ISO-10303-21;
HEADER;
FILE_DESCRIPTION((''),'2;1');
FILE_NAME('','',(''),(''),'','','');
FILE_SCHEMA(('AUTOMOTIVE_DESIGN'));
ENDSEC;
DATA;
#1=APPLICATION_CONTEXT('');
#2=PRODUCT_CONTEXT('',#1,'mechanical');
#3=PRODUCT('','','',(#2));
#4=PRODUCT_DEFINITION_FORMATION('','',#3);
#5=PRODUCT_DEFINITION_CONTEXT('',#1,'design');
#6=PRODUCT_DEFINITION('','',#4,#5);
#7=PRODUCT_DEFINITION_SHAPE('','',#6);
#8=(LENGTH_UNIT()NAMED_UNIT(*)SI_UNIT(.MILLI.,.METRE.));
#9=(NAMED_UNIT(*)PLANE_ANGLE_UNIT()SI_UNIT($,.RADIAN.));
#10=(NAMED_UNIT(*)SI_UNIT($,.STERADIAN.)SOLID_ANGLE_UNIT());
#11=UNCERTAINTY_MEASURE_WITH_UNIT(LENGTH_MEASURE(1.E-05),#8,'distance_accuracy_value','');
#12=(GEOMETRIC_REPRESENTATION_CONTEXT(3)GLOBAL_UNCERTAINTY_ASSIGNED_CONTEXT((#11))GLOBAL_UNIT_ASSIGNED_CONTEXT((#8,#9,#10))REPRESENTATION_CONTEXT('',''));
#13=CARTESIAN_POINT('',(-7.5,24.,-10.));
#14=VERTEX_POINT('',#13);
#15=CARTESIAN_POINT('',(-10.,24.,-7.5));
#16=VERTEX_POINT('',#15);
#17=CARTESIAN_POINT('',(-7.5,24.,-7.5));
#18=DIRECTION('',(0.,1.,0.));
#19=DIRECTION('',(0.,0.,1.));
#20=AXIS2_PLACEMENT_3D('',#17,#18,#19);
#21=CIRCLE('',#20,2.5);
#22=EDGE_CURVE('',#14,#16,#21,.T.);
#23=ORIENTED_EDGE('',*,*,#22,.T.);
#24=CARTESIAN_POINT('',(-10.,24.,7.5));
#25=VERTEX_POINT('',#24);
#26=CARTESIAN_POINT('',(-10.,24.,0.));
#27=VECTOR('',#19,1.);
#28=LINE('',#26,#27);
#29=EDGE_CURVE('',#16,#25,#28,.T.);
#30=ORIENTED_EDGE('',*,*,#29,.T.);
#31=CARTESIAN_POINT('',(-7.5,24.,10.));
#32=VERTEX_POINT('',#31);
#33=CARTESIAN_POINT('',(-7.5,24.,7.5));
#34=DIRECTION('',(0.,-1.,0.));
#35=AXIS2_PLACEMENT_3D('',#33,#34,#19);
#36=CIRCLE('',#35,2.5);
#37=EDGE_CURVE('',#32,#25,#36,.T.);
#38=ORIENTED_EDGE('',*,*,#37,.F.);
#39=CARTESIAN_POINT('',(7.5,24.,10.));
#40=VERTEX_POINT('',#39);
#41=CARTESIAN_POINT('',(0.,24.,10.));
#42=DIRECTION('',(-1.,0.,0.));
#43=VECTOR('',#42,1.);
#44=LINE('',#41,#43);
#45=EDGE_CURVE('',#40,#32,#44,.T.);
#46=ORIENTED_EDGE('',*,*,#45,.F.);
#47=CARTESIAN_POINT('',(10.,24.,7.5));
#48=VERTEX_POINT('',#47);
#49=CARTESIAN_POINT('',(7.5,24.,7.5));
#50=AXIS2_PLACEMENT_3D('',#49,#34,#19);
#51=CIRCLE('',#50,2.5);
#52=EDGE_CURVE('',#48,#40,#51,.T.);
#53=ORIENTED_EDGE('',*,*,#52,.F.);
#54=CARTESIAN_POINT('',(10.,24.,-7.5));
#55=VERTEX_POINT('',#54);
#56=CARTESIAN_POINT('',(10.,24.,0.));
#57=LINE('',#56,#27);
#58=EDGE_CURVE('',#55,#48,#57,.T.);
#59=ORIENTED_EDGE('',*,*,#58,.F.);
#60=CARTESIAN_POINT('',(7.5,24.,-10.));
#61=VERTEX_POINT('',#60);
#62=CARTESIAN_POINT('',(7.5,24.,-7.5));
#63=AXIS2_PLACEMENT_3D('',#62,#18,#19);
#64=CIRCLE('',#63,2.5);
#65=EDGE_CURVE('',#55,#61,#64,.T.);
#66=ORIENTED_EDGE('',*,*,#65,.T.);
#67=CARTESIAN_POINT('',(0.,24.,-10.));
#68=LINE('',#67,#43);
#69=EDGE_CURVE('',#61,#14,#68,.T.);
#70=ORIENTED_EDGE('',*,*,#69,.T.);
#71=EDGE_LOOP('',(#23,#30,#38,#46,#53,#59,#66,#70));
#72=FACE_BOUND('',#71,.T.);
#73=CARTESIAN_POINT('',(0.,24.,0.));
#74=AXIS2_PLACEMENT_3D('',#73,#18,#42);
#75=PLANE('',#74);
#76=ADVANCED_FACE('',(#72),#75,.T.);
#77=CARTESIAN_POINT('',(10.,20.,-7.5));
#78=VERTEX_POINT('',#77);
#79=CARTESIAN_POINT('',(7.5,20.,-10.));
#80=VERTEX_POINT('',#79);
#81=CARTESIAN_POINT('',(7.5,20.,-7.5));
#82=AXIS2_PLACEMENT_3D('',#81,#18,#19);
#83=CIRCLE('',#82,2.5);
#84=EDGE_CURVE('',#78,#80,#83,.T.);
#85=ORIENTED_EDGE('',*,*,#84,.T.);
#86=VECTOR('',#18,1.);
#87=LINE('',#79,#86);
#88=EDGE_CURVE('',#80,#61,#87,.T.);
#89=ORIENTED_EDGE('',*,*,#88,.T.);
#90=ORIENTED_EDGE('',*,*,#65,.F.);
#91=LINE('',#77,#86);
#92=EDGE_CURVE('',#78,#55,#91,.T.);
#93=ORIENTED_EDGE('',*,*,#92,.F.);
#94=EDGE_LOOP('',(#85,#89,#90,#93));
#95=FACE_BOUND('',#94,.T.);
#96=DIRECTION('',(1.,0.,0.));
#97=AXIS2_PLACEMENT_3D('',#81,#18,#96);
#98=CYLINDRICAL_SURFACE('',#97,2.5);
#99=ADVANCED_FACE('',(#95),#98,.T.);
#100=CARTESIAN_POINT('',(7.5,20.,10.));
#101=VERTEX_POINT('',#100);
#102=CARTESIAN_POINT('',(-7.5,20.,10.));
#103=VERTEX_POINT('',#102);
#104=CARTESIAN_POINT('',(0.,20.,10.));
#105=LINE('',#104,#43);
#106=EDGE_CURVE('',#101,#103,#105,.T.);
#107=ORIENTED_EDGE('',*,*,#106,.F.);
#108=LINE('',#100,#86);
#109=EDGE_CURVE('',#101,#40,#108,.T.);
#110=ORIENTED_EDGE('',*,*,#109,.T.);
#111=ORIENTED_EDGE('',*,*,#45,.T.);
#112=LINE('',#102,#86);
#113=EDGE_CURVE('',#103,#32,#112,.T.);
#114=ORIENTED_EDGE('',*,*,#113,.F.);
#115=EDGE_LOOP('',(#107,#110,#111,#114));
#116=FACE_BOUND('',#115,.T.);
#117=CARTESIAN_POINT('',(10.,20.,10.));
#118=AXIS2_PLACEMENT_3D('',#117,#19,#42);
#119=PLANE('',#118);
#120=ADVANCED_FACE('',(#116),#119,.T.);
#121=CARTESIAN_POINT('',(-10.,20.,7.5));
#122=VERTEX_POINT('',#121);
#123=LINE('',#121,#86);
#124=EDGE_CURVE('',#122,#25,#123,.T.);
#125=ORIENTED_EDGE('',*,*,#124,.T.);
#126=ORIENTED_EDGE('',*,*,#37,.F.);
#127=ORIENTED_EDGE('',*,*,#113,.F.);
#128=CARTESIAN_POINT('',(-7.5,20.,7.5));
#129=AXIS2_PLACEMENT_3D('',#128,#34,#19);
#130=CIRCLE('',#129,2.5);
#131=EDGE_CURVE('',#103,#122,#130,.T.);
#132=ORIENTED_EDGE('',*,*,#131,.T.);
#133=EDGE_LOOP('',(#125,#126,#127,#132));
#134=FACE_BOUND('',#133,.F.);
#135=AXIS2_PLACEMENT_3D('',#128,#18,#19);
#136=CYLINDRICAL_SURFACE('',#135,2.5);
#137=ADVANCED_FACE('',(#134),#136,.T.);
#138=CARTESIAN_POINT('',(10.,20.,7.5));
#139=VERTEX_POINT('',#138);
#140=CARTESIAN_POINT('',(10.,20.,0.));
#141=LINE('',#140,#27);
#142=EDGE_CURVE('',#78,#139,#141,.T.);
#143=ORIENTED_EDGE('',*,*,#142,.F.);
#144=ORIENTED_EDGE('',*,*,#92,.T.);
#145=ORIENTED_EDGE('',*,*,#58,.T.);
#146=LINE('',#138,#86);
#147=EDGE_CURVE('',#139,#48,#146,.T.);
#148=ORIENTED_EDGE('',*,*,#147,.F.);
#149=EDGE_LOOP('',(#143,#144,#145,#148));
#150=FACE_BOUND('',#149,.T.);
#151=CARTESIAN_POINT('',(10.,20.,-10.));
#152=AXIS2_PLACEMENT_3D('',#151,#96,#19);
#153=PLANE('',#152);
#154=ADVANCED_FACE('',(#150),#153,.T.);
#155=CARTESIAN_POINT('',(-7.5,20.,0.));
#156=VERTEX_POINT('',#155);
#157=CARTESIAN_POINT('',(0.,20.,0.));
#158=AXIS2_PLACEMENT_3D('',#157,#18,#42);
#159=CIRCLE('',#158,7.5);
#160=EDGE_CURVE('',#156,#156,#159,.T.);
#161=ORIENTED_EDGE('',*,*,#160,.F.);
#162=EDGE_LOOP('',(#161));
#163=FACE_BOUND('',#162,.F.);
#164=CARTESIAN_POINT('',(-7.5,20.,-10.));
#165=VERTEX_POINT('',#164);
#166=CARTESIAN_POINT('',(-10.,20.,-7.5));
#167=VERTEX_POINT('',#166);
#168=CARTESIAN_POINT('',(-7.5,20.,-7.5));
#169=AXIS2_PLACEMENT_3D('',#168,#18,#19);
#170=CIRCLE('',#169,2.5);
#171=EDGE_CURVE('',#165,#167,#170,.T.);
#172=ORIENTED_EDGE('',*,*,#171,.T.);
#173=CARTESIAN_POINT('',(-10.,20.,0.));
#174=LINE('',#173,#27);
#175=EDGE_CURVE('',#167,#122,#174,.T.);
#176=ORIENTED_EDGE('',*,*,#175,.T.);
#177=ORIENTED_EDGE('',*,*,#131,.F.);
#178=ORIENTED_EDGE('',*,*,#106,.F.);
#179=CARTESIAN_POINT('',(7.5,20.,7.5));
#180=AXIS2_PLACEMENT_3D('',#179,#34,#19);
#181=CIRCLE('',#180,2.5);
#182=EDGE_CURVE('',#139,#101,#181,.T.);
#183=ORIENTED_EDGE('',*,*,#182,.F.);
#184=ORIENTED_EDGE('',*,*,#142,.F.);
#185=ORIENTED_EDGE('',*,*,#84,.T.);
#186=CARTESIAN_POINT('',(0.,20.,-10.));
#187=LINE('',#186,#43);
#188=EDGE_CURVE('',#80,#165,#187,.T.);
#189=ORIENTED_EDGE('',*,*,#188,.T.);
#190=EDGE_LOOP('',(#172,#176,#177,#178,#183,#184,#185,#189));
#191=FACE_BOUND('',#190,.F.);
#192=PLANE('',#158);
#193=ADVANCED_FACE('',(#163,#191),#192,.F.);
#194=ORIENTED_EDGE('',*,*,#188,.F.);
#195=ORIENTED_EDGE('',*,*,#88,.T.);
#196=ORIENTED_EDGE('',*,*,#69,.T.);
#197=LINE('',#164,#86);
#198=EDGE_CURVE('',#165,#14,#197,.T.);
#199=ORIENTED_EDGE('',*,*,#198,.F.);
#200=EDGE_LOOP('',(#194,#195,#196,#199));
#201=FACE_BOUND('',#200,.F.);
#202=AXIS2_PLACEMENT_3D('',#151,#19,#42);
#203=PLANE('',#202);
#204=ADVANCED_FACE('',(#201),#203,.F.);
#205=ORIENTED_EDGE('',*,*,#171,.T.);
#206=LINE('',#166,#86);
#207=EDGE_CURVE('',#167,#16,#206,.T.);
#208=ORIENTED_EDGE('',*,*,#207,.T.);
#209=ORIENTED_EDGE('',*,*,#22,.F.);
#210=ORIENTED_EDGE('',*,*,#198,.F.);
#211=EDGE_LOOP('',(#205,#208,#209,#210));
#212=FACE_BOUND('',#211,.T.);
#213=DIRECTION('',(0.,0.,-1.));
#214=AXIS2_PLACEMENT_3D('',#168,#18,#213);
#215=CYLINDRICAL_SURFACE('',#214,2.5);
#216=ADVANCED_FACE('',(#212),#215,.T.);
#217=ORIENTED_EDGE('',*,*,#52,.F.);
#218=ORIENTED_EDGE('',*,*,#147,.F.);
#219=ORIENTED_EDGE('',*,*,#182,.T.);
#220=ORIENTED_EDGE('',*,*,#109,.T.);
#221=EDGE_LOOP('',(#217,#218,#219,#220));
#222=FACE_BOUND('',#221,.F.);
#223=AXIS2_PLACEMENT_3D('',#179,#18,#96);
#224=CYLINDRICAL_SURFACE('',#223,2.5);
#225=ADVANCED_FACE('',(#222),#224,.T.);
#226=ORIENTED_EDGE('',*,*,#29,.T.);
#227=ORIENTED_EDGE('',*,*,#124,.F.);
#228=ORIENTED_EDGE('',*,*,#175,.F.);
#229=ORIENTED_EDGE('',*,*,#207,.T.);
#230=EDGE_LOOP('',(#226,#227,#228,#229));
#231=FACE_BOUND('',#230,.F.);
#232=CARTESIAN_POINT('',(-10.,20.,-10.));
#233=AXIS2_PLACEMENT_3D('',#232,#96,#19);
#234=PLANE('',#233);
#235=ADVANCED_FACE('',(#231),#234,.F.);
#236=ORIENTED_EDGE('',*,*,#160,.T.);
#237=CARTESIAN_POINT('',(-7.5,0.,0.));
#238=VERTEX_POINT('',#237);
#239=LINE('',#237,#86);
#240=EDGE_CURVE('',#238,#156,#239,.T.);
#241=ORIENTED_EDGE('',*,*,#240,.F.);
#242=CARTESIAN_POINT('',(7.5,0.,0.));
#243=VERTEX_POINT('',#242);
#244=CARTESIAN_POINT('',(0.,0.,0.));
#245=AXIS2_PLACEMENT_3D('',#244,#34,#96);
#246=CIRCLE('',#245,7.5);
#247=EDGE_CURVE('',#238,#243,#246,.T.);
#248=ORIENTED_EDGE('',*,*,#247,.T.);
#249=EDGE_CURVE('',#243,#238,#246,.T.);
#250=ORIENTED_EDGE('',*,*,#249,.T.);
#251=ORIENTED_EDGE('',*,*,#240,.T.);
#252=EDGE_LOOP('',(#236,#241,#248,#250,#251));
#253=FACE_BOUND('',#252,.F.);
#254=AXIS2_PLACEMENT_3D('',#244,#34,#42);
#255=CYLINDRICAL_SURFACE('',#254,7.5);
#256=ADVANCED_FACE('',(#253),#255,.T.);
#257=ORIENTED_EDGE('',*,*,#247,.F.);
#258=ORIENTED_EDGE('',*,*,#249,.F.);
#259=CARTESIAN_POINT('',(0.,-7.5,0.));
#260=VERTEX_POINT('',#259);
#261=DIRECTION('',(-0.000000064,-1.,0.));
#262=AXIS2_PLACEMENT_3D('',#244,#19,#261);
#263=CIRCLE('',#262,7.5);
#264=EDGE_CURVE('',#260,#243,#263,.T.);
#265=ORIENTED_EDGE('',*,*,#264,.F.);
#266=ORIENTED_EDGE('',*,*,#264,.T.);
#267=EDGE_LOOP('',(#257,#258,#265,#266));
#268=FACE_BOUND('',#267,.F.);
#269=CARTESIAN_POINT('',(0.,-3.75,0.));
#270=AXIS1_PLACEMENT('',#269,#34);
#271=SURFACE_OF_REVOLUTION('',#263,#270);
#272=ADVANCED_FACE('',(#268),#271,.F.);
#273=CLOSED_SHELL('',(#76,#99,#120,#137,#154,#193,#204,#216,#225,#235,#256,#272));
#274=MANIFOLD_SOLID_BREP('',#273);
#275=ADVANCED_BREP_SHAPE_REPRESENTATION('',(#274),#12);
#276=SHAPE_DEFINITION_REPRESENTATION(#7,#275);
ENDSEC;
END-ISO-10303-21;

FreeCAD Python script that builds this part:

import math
import FreeCAD as App
import Part
import Sketcher


def edges_at(feature, points):
    """Names of the edges that pass closest to the given points."""
    edges = feature.Shape.Edges
    near = lambda p: min(range(len(edges)), key=lambda i: edges[i].distToShape(Part.Vertex(*p))[0])
    return sorted({f"Edge{near(p) + 1}" for p in points})


def add_polygon(sketch, points):
    """Adds a closed chain of lines whose ends are joined by coincident constraints."""
    first, n = sketch.GeometryCount, len(points)
    for a, b in zip(points, points[1:] + points[:1]):
        sketch.addGeometry(Part.LineSegment(App.Vector(*a, 0), App.Vector(*b, 0)), False)
    for i in range(n):
        sketch.addConstraint(Sketcher.Constraint("Coincident", first + i, 2, first + (i + 1) % n, 1))

doc = App.newDocument("Part")
body = doc.addObject("PartDesign::Body", "Body")

sketch1 = body.newObject("Sketcher::SketchObject", "Sketch")
sketch1.AttachmentSupport = (doc.getObject("XY_Plane"), [""])
sketch1.MapMode = "FlatFace"
sketch1.addGeometry([
    Part.ArcOfCircle(Part.Circle(App.Vector(0, 0, 0), App.Vector(0, 0, 1), 7), math.radians(-90), math.radians(0)),
    Part.LineSegment(App.Vector(8, 0, 0), App.Vector(0, 0, 0)),
    Part.LineSegment(App.Vector(0, 0, 0), App.Vector(0, -8, 0)),
], False)
sketch1.addConstraint([
    Sketcher.Constraint("Coincident", 0, 2, 1, 1),
    Sketcher.Constraint("Coincident", 1, 2, 2, 1),
    Sketcher.Constraint("Coincident", 2, 2, 0, 1),
    Sketcher.Constraint("Horizontal", 1),
    Sketcher.Constraint("Vertical", 2),
    Sketcher.Constraint("Coincident", 0, 3, -1, 1),
    Sketcher.Constraint("Coincident", 1, 2, -1, 1),
    Sketcher.Constraint("Radius", 0, 7.5),
])
revolution = body.newObject("PartDesign::Revolution", "Revolution")
revolution.Profile = sketch1
revolution.ReferenceAxis = (sketch1, ["V_Axis"])
revolution.Angle = 360

sketch2 = body.newObject("Sketcher::SketchObject", "Sketch001")
sketch2.AttachmentSupport = (doc.getObject("XZ_Plane"), [""])
sketch2.MapMode = "FlatFace"
sketch2.addGeometry(Part.Circle(App.Vector(0, 0, 0), App.Vector(0, 0, 1), 8), False)
sketch2.addConstraint([
    Sketcher.Constraint("Coincident", 0, 3, -1, 1),
    Sketcher.Constraint("Diameter", 0, 15.0),
])
pad1 = body.newObject("PartDesign::Pad", "Pad")
pad1.Profile = sketch2
pad1.Length = 20
pad1.Reversed = True

sketch3 = body.newObject("Sketcher::SketchObject", "Sketch002")
sketch3.AttachmentSupport = (doc.getObject("XZ_Plane"), [""])
sketch3.MapMode = "FlatFace"
sketch3.AttachmentOffset = App.Placement(App.Vector(0, 0, -20), App.Rotation())
add_polygon(sketch3, [(10, 10), (10, -10), (-10, -10), (-10, 10)])
sketch3.addConstraint([
    Sketcher.Constraint("Vertical", 0),
    Sketcher.Constraint("Horizontal", 1),
    Sketcher.Constraint("Vertical", 2),
    Sketcher.Constraint("Horizontal", 3),
    Sketcher.Constraint("Symmetric", 0, 2, 2, 2, -1, 1),
    Sketcher.Constraint("Equal", 3, 0),
    Sketcher.Constraint("DistanceX", 1, 2, 1, 1, 20.0),
])
pad2 = body.newObject("PartDesign::Pad", "Pad001")
pad2.Profile = sketch3
pad2.Length = 4
pad2.Reversed = True
doc.recompute()

fillet = body.newObject("PartDesign::Fillet", "Fillet")
fillet.Base = (pad2, edges_at(pad2, [
    (-10, 22, 10),
    (-10, 22, -10),
    (10, 22, -10),
    (10, 22, 10),
]))
fillet.Radius = 2.5

doc.recompute()
